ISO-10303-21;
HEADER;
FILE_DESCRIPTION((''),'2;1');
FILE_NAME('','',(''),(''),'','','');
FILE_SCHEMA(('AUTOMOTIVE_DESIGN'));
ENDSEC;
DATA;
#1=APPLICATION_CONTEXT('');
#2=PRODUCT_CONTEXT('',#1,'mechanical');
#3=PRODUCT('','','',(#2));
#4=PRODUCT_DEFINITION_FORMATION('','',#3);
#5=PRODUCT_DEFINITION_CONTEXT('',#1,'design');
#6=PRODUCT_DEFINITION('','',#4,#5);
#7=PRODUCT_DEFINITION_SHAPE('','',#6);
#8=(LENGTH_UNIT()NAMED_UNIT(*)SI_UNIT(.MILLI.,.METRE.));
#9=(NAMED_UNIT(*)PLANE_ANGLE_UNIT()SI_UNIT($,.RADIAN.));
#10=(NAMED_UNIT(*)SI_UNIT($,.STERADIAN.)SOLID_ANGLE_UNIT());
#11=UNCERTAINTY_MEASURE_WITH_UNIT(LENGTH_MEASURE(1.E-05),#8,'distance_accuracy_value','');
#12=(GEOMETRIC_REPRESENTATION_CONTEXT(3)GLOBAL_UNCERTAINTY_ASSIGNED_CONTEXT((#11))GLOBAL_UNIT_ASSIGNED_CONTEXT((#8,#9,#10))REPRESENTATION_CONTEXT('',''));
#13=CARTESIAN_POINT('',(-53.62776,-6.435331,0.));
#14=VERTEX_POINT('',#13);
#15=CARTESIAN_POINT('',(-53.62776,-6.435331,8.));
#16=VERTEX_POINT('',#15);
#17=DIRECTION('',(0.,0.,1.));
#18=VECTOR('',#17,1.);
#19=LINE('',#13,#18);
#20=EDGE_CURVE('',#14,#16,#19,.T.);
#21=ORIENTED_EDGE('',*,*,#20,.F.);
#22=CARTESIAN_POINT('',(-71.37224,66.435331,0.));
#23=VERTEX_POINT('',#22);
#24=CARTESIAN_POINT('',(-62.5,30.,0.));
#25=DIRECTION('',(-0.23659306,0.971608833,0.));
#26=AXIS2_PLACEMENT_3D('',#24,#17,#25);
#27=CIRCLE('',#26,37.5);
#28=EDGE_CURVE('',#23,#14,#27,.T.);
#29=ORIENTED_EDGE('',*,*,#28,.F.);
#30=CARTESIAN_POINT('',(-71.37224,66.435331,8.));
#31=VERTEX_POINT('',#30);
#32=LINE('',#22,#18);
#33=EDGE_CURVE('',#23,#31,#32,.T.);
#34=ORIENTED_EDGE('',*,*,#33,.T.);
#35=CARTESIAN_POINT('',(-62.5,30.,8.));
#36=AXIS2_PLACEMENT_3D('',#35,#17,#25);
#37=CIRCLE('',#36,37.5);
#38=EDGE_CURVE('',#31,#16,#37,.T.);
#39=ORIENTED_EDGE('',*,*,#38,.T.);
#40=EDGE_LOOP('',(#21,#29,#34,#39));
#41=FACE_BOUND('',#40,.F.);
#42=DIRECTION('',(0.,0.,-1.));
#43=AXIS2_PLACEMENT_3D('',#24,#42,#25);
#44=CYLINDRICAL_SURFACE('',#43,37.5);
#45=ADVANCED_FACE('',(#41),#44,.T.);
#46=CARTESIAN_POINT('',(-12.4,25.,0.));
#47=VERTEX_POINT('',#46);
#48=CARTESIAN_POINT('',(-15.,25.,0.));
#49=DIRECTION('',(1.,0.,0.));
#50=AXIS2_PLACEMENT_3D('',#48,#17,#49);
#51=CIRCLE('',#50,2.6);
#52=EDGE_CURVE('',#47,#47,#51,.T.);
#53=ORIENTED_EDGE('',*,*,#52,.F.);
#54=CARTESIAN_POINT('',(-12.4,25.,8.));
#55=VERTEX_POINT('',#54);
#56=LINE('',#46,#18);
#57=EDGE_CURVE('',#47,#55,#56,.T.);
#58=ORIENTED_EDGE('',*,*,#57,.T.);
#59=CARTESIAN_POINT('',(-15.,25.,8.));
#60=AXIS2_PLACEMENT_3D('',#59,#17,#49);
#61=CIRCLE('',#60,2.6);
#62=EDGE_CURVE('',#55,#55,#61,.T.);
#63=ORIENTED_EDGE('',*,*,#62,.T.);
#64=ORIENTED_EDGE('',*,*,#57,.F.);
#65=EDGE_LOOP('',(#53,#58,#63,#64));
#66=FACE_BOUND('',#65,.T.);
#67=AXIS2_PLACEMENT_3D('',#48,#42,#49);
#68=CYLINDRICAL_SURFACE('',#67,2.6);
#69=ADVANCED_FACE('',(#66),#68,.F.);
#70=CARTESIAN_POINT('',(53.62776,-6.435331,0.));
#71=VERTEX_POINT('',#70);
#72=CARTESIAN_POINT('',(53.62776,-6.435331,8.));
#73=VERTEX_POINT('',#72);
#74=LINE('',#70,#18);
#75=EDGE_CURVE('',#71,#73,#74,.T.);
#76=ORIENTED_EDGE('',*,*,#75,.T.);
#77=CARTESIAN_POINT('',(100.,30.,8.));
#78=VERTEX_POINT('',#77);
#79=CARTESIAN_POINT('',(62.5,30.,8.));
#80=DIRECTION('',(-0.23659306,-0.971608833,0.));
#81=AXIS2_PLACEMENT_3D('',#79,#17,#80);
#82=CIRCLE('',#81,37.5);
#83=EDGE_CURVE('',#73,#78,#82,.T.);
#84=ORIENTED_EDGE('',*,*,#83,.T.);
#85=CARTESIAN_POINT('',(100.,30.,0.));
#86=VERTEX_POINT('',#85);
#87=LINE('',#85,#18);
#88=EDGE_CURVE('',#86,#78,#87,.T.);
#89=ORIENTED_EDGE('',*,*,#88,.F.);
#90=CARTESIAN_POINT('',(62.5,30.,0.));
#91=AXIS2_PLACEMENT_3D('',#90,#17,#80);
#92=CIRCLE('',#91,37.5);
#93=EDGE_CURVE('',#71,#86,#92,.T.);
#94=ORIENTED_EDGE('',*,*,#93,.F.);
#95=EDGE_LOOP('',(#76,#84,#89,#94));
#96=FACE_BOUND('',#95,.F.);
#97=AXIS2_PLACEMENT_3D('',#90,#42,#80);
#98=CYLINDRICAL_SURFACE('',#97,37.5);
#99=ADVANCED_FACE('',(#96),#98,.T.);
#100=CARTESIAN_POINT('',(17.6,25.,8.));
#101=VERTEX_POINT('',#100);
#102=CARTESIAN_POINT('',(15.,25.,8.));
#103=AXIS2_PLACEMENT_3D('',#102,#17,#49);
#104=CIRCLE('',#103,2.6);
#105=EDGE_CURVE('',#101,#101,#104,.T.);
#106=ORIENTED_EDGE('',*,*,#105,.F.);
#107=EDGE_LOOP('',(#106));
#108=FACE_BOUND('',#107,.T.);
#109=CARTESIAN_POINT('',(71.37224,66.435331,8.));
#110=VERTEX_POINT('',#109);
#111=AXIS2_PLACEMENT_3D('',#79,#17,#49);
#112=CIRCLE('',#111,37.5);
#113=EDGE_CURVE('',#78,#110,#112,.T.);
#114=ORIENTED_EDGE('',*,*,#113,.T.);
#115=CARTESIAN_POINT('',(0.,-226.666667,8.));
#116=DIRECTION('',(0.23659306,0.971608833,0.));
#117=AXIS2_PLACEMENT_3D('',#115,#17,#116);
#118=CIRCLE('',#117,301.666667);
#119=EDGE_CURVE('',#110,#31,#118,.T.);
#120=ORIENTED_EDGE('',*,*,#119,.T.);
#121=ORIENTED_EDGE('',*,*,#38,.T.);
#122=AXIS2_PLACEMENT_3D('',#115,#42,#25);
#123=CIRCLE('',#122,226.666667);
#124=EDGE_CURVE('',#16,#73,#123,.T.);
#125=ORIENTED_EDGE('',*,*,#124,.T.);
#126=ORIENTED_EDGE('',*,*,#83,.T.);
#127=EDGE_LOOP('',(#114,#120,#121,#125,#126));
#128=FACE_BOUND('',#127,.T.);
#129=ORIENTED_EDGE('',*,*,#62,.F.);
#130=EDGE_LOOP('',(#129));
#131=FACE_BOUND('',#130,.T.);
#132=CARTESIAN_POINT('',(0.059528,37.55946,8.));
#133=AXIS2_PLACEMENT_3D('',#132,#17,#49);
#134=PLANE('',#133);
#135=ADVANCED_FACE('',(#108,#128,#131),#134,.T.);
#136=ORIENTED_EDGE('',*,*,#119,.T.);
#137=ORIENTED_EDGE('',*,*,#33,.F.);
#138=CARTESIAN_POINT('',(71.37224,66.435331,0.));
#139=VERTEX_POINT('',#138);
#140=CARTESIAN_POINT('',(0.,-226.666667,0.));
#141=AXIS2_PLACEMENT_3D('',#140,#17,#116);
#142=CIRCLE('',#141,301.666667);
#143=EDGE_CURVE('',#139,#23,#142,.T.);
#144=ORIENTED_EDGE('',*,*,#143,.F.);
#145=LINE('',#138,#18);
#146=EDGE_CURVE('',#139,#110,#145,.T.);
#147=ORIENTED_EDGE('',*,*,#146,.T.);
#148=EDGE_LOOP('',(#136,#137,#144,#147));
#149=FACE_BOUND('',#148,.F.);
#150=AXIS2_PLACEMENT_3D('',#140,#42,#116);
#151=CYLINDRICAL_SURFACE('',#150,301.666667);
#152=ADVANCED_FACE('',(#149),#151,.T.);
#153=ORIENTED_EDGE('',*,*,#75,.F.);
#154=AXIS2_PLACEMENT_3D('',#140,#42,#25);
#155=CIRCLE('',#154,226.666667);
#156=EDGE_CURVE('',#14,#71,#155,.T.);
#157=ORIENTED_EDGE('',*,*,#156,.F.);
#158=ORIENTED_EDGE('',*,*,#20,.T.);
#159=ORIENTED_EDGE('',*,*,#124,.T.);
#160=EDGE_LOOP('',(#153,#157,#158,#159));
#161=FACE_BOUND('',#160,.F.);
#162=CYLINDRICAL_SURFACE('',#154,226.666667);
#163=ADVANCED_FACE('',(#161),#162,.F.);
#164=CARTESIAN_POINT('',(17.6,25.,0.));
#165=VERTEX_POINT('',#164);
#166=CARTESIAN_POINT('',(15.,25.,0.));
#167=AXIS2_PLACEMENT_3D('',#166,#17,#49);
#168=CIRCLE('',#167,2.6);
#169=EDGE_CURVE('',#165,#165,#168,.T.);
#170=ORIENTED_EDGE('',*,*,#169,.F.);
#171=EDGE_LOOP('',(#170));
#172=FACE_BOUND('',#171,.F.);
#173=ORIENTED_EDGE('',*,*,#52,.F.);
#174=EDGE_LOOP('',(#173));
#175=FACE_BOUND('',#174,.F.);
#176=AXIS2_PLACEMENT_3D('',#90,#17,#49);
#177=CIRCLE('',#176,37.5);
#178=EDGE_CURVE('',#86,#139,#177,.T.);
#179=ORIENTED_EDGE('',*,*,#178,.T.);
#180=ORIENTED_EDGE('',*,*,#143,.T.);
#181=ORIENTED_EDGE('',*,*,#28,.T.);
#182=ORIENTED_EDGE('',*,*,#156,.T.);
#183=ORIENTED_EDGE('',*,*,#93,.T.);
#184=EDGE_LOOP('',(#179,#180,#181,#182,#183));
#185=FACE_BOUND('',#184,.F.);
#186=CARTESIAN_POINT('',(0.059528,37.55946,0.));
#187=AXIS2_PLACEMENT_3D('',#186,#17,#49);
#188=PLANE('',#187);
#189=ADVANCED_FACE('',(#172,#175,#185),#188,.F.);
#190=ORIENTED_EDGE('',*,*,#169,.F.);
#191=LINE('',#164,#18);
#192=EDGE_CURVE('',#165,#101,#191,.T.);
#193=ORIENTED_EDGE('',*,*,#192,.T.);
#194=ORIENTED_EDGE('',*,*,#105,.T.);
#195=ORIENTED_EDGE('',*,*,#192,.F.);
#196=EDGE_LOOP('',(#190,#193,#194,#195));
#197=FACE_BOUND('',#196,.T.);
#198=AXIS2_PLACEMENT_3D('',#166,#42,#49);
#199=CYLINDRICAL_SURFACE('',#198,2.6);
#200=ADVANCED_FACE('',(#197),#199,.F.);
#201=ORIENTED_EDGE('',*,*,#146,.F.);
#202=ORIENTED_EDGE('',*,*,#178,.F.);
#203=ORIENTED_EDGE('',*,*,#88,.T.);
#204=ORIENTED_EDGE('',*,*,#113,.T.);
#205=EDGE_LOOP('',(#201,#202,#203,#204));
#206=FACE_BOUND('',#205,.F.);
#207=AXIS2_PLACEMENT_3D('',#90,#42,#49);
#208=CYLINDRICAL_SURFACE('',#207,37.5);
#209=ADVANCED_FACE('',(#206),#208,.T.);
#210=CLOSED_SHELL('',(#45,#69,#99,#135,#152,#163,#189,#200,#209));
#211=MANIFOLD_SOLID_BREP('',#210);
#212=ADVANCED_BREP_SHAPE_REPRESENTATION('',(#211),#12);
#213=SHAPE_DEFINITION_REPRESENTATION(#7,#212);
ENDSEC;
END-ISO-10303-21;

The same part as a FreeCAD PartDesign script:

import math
import FreeCAD as App
import Part
import Sketcher

V = App.Vector
Q = App.Units.Quantity

doc = App.newDocument("Part")
body = doc.addObject("PartDesign::Body", "Body")

# Sketch on XY plane
sketch1 = body.newObject("Sketcher::SketchObject", "Sketch")
sketch1.AttachmentSupport = (doc.getObject("XY_Plane"), [""])
sketch1.MapMode = "FlatFace"
sketch1.addGeometry([
    Part.ArcOfCircle(Part.Circle(V(0, -226.7, 0), V(0, 0, 1), 301.7), math.radians(76), math.radians(104)),  # 0
    Part.ArcOfCircle(Part.Circle(V(-62.5, 30, 0), V(0, 0, 1), 37.5), math.radians(104), math.radians(284)),  # 1
    Part.ArcOfCircle(Part.Circle(V(0, -226.7, 0), V(0, 0, 1), 226.7), math.radians(76), math.radians(104)),  # 2
    Part.ArcOfCircle(Part.Circle(V(62.5, 30, 0), V(0, 0, 1), 37.5), math.radians(-104), math.radians(0)),  # 3
    Part.ArcOfCircle(Part.Circle(V(62.5, 30, 0), V(0, 0, 1), 37.5), math.radians(0), math.radians(76)),  # 4
    Part.Circle(V(-15, 25, 0), V(0, 0, 1), 2.6),  # 5
    Part.Circle(V(15, 25, 0), V(0, 0, 1), 2.6),  # 6
], False)
sketch1.addConstraint([
    Sketcher.Constraint("Tangent", 0, 2, 1, 1),
    Sketcher.Constraint("Tangent", 1, 2, 2, 2),
    Sketcher.Constraint("Tangent", 2, 1, 3, 1),
    Sketcher.Constraint("Tangent", 3, 2, 4, 1),
    Sketcher.Constraint("Tangent", 4, 2, 0, 1),
    Sketcher.Constraint("Coincident", 2, 3, 0, 3),
    Sketcher.Constraint("Equal", 1, 3),
    Sketcher.Constraint("Equal", 5, 6),
    Sketcher.Constraint("Symmetric", 1, 3, 3, 3, -2),
    Sketcher.Constraint("Symmetric", 5, 3, 6, 3, -2),
    Sketcher.Constraint("Horizontal", 4, 3, 3, 2),
    Sketcher.Constraint("Diameter", 5, Q("5.2 mm")),
    Sketcher.Constraint("Radius", 1, Q("37.5 mm")),
    Sketcher.Constraint("DistanceY", -1, 1, 1, 3, Q("30 mm")),
    Sketcher.Constraint("DistanceX", 5, 3, -1, 1, Q("15 mm")),
    Sketcher.Constraint("DistanceY", -1, 1, 5, 3, Q("25 mm")),
    Sketcher.Constraint("DistanceX", -1, 1, 3, 2, Q("100 mm")),
    Sketcher.Constraint("Radius", 0, Q("301.666667 mm")),
])
pad1 = body.newObject("PartDesign::Pad", "Pad")
pad1.Profile = sketch1
pad1.Length = 8

doc.recompute()
